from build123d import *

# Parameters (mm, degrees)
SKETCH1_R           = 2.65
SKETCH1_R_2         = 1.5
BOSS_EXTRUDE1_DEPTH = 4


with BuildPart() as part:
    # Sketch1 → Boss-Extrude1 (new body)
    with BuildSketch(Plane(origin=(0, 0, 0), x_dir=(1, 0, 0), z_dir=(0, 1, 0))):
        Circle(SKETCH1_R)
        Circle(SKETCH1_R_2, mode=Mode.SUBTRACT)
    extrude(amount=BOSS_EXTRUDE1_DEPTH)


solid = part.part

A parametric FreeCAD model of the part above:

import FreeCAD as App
import Part
import Sketcher
from FreeCAD import Vector
Q = App.Units.Quantity

doc = App.newDocument("Part")
body = doc.addObject("PartDesign::Body", "Body")

sketch1 = body.newObject("Sketcher::SketchObject", "Sketch")
sketch1.AttachmentSupport = (doc.getObject("XZ_Plane"), [""])
sketch1.MapMode = "FlatFace"
sketch1.addGeometry(Part.Circle(Vector(0, 0, 0), Vector(0, 0, 1), 2.65), False)
sketch1.addGeometry(Part.Circle(Vector(0, 0, 0), Vector(0, 0, 1), 1.5), False)
sketch1.addConstraint(Sketcher.Constraint("Coincident", 0, 3, -1, 1))
sketch1.addConstraint(Sketcher.Constraint("Coincident", 1, 3, -1, 1))
sketch1.addConstraint(Sketcher.Constraint("Diameter", 1, Q("3 mm")))
sketch1.addConstraint(Sketcher.Constraint("Diameter", 0, Q("5.3 mm")))
pad1 = body.newObject("PartDesign::Pad", "Pad")
pad1.Profile = sketch1
pad1.Length = 4
pad1.Reversed = True

doc.recompute()
